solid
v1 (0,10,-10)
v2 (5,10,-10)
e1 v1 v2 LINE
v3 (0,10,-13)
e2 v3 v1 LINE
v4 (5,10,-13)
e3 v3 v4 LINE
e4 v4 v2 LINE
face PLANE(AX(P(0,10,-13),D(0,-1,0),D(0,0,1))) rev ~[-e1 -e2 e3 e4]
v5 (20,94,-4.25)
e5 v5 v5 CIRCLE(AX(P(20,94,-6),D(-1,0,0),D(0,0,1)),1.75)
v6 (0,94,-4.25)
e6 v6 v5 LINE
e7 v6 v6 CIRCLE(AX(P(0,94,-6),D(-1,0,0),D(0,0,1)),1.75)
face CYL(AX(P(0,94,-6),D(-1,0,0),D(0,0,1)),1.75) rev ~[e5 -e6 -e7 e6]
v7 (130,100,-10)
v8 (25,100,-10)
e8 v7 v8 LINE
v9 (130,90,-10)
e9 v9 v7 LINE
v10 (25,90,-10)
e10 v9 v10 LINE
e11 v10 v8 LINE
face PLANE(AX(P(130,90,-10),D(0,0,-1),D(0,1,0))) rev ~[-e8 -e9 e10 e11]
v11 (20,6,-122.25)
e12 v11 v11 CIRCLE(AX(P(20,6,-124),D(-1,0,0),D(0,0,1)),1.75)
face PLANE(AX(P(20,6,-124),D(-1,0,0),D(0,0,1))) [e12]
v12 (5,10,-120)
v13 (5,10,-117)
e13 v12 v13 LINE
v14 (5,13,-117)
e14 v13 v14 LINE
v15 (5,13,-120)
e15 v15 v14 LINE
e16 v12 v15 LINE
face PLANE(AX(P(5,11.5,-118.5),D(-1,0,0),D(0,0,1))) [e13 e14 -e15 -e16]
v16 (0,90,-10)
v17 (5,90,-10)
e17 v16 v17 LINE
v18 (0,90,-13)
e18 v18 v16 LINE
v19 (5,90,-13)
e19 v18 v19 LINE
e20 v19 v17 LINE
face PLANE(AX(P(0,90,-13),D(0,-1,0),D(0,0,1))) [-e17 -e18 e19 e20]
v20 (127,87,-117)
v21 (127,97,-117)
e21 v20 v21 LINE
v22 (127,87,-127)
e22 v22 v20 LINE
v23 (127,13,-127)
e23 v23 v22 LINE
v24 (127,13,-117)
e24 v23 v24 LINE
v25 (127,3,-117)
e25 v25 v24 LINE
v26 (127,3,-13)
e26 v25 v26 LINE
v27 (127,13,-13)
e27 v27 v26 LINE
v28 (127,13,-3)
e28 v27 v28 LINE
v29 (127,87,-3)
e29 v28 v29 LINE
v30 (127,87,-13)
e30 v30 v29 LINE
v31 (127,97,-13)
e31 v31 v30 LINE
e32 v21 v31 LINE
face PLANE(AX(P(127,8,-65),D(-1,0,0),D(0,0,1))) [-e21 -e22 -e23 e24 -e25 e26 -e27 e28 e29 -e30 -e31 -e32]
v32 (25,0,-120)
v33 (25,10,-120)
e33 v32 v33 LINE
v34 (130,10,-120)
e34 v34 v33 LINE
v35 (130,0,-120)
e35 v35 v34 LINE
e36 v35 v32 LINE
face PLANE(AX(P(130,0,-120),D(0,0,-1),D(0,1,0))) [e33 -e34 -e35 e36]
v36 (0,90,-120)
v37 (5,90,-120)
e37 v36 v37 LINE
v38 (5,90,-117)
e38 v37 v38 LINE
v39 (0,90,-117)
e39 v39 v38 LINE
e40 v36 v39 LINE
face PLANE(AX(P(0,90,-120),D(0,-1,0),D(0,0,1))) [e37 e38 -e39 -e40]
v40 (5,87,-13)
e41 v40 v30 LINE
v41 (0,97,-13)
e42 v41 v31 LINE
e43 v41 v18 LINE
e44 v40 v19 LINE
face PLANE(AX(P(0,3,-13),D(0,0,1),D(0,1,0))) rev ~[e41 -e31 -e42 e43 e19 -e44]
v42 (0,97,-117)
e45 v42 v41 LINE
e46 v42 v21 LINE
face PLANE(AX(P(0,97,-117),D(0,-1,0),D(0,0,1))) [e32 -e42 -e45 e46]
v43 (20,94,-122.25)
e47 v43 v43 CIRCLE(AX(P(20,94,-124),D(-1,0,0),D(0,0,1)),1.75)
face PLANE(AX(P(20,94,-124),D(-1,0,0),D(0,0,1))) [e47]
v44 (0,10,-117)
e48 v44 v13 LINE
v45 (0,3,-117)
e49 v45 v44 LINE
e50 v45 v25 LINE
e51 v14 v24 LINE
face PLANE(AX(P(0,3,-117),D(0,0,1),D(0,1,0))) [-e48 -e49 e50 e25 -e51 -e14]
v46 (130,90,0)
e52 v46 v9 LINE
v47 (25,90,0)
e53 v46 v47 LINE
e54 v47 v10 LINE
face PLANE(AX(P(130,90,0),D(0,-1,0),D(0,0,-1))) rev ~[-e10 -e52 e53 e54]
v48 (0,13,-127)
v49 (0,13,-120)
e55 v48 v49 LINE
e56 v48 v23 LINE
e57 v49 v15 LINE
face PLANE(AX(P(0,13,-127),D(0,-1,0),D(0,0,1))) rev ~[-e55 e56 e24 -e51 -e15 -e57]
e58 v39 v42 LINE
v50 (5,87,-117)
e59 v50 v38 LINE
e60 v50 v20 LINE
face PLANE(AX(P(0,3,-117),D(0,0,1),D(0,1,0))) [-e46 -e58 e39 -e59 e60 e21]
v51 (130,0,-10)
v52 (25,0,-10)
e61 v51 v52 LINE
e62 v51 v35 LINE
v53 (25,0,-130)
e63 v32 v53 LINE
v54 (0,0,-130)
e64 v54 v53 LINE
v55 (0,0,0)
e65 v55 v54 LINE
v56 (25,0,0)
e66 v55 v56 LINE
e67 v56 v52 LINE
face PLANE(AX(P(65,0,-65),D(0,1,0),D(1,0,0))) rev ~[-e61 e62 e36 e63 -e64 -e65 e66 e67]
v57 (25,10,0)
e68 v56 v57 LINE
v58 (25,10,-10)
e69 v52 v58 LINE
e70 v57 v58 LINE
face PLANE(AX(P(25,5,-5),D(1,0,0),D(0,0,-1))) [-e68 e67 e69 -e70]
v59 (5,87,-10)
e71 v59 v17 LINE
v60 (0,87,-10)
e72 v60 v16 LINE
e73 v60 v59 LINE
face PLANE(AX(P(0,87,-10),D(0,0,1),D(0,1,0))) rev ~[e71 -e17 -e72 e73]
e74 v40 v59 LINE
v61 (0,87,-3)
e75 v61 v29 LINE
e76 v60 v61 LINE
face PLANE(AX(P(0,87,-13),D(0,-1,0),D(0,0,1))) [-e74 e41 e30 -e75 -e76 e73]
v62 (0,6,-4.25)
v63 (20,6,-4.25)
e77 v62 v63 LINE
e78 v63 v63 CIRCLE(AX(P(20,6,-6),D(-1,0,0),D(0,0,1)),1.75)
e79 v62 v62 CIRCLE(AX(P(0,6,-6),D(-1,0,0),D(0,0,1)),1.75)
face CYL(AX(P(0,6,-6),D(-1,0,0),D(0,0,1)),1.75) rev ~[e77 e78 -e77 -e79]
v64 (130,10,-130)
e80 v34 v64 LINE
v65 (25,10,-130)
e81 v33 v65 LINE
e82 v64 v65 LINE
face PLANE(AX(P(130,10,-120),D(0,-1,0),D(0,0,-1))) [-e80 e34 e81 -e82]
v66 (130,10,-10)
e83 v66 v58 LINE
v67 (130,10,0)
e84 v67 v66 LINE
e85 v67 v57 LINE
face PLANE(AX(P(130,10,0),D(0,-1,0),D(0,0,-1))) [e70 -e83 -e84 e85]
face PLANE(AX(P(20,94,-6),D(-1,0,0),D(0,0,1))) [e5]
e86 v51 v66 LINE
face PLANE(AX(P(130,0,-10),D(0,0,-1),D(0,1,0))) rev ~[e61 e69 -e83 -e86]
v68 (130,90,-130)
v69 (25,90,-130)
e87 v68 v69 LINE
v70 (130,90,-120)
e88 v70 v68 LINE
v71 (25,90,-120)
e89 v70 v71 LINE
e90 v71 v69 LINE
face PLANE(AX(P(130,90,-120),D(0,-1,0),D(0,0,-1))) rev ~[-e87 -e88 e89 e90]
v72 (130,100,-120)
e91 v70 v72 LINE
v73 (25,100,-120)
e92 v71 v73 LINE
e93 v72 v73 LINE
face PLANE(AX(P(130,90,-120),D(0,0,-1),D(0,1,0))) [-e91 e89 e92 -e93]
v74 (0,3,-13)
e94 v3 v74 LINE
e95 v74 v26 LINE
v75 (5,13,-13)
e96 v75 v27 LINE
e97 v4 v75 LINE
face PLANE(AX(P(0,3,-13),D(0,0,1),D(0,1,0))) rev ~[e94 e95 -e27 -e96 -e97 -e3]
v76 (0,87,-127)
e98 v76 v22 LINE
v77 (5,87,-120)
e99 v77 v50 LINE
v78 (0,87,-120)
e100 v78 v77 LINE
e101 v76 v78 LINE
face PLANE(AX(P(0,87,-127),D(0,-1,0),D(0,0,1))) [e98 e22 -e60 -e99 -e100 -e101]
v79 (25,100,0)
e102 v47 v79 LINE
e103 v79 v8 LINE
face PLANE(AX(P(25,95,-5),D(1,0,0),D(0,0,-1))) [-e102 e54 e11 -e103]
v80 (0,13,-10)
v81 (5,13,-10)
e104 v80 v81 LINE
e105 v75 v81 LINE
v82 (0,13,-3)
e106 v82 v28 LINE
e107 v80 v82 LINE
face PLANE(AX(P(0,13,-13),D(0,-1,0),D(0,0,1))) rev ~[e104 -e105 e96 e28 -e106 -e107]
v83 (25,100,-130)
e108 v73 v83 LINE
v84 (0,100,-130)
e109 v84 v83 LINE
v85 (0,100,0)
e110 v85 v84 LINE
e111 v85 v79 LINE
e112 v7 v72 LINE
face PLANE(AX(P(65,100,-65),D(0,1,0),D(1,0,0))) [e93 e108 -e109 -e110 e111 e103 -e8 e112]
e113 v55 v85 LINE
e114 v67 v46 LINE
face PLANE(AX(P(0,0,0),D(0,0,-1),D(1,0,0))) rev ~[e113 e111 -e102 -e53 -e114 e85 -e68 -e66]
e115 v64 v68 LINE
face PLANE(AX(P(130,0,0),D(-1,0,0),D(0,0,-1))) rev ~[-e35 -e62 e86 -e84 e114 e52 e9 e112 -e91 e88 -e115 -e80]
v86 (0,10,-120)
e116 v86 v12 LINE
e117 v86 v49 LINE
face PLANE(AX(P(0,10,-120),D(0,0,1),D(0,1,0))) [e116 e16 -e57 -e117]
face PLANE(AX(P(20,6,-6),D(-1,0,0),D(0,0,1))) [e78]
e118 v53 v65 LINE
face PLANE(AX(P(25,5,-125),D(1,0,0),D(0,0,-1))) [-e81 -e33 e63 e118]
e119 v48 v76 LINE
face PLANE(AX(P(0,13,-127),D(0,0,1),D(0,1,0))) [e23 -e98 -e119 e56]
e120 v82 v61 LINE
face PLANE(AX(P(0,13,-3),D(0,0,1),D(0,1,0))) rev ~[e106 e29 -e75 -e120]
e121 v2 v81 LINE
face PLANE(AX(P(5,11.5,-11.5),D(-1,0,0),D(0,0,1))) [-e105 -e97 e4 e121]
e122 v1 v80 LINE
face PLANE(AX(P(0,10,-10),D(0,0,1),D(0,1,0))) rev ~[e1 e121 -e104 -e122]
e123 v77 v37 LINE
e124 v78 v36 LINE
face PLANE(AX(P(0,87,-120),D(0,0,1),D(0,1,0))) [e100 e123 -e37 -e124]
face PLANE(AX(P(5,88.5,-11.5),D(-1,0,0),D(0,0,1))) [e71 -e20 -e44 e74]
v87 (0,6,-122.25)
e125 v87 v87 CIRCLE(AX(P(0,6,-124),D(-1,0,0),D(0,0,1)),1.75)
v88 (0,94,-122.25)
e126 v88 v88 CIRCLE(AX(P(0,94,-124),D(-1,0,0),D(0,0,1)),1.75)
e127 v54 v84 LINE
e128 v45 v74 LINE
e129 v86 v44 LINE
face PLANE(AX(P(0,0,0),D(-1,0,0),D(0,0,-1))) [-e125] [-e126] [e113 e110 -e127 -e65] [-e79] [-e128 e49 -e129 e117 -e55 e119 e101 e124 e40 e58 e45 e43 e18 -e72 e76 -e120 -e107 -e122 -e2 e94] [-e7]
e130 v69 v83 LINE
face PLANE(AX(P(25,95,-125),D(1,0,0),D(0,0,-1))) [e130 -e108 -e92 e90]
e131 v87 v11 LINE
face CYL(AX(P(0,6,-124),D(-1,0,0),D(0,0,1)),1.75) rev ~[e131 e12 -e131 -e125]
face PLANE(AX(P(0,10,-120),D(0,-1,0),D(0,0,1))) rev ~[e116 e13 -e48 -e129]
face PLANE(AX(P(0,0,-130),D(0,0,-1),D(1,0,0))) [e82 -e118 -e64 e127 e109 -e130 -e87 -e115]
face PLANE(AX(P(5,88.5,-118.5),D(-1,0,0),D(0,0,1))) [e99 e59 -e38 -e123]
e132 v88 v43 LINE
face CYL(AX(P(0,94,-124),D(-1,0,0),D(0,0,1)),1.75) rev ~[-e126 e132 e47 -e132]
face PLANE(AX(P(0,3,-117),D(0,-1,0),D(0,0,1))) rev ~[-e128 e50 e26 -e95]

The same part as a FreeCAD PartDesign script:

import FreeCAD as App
import Part
import Sketcher
Q = App.Units.Quantity


def add_polygon(sketch, points):
    """Adds a closed chain of lines whose ends are joined by coincident constraints."""
    first, n = sketch.GeometryCount, len(points)
    for a, b in zip(points, points[1:] + points[:1]):
        sketch.addGeometry(Part.LineSegment(App.Vector(*a, 0), App.Vector(*b, 0)), False)
    for i in range(n):
        sketch.addConstraint(Sketcher.Constraint("Coincident", first + i, 2, first + (i + 1) % n, 1))

doc = App.newDocument("Part")
body = doc.addObject("PartDesign::Body", "Body")

# Sketch on XZ plane
sketch1 = doc.addObject("Sketcher::SketchObject", "Sketch")
body.addObject(sketch1)
sketch1.AttachmentSupport = (doc.XZ_Plane, [""])
sketch1.MapMode = "FlatFace"
add_polygon(sketch1, [(0, -130), (0, 0), (130, 0), (130, -130)])  # lines 0-3
sketch1.addConstraint(Sketcher.Constraint("Vertical", 0))
sketch1.addConstraint(Sketcher.Constraint("Horizontal", 1))
sketch1.addConstraint(Sketcher.Constraint("Vertical", 2))
sketch1.addConstraint(Sketcher.Constraint("Horizontal", 3))
sketch1.addConstraint(Sketcher.Constraint("Coincident", 0, 2, -1, 1))
sketch1.addConstraint(Sketcher.Constraint("Equal", 3, 0))
sketch1.addConstraint(Sketcher.Constraint("DistanceX", 1, 1, 1, 2, Q("130 mm")))
pad1 = doc.addObject("PartDesign::Pad", "Pad")
body.addObject(pad1)
pad1.Profile = sketch1
pad1.Length = 100
pad1.Reversed = True

# Sketch on YZ plane
sketch2 = doc.addObject("Sketcher::SketchObject", "Sketch001")
body.addObject(sketch2)
sketch2.AttachmentSupport = (doc.YZ_Plane, [""])
sketch2.MapMode = "FlatFace"
add_polygon(sketch2, [(87, -117), (13, -117), (13, -13), (87, -13)])  # lines 0-3
sketch2.addConstraint(Sketcher.Constraint("Horizontal", 0))
sketch2.addConstraint(Sketcher.Constraint("Vertical", 1))
sketch2.addConstraint(Sketcher.Constraint("Horizontal", 2))
sketch2.addConstraint(Sketcher.Constraint("Vertical", 3))
sketch2.addConstraint(Sketcher.Constraint("DistanceX", 0, 2, 0, 1, Q("74 mm")))
sketch2.addConstraint(Sketcher.Constraint("DistanceY", 1, 1, 1, 2, Q("104 mm")))
sketch2.addConstraint(Sketcher.Constraint("DistanceX", -1, 1, 0, 2, Q("13 mm")))
sketch2.addConstraint(Sketcher.Constraint("DistanceY", 0, 2, -1, 1, Q("117 mm")))
pocket1 = doc.addObject("PartDesign::Pocket", "Pocket")
body.addObject(pocket1)
pocket1.Profile = sketch2
pocket1.Length = 127
pocket1.Reversed = True

# Sketch on YZ plane
sketch3 = doc.addObject("Sketcher::SketchObject", "Sketch002")
body.addObject(sketch3)
sketch3.AttachmentSupport = (doc.YZ_Plane, [""])
sketch3.MapMode = "FlatFace"
sketch3.AttachmentOffset = App.Placement(App.Vector(0, 0, 130), App.Rotation())
add_polygon(sketch3, [(100, 0), (90, 0), (90, -10), (100, -10)])  # lines 0-3
add_polygon(sketch3, [(100, -120), (90, -120), (90, -130), (100, -130)])  # lines 4-7
add_polygon(sketch3, [(10, 0), (0, 0), (0, -10), (10, -10)])  # lines 8-11
add_polygon(sketch3, [(10, -120), (0, -120), (0, -130), (10, -130)])  # lines 12-15
sketch3.addConstraint(Sketcher.Constraint("Horizontal", 0))
sketch3.addConstraint(Sketcher.Constraint("Vertical", 1))
sketch3.addConstraint(Sketcher.Constraint("Horizontal", 2))
sketch3.addConstraint(Sketcher.Constraint("Vertical", 3))
sketch3.addConstraint(Sketcher.Constraint("Horizontal", 4))
sketch3.addConstraint(Sketcher.Constraint("Vertical", 5))
sketch3.addConstraint(Sketcher.Constraint("Horizontal", 6))
sketch3.addConstraint(Sketcher.Constraint("Vertical", 7))
sketch3.addConstraint(Sketcher.Constraint("Horizontal", 8))
sketch3.addConstraint(Sketcher.Constraint("Vertical", 9))
sketch3.addConstraint(Sketcher.Constraint("Horizontal", 10))
sketch3.addConstraint(Sketcher.Constraint("Vertical", 11))
sketch3.addConstraint(Sketcher.Constraint("Horizontal", 12))
sketch3.addConstraint(Sketcher.Constraint("Vertical", 13))
sketch3.addConstraint(Sketcher.Constraint("Horizontal", 14))
sketch3.addConstraint(Sketcher.Constraint("Vertical", 15))
sketch3.addConstraint(Sketcher.Constraint("Coincident", 8, 2, -1, 1))
sketch3.addConstraint(Sketcher.Constraint("PointOnObject", 0, 2, -1))
sketch3.addConstraint(Sketcher.Constraint("PointOnObject", 12, 2, -2))
sketch3.addConstraint(Sketcher.Constraint("Horizontal", 2, 2, 9, 2))
sketch3.addConstraint(Sketcher.Constraint("Horizontal", 7, 2, 12, 2))
sketch3.addConstraint(Sketcher.Constraint("Horizontal", 6, 2, 13, 2))
sketch3.addConstraint(Sketcher.Constraint("Vertical", 1, 2, 4, 2))
sketch3.addConstraint(Sketcher.Constraint("Vertical", 3, 2, 6, 2))
sketch3.addConstraint(Sketcher.Constraint("Vertical", 11, 2, 14, 2))
sketch3.addConstraint(Sketcher.Constraint("Equal", 6, 8))
sketch3.addConstraint(Sketcher.Constraint("Equal", 14, 1))
sketch3.addConstraint(Sketcher.Constraint("Equal", 3, 5))
sketch3.addConstraint(Sketcher.Constraint("DistanceX", 0, 2, 0, 1, Q("10 mm")))
sketch3.addConstraint(Sketcher.Constraint("DistanceX", -1, 1, 0, 2, Q("90 mm")))
sketch3.addConstraint(Sketcher.Constraint("DistanceY", 4, 2, -1, 1, Q("120 mm")))
pocket2 = doc.addObject("PartDesign::Pocket", "Pocket001")
body.addObject(pocket2)
pocket2.Profile = sketch3
pocket2.Length = 105

# Sketch on YZ plane
sketch4 = doc.addObject("Sketcher::SketchObject", "Sketch003")
body.addObject(sketch4)
sketch4.AttachmentSupport = (doc.YZ_Plane, [""])
sketch4.MapMode = "FlatFace"
add_polygon(sketch4, [(97, -117), (87, -117), (87, -13), (97, -13)])  # lines 0-3
add_polygon(sketch4, [(13, -117), (3, -117), (3, -13), (13, -13)])  # lines 4-7
sketch4.addConstraint(Sketcher.Constraint("Horizontal", 0))
sketch4.addConstraint(Sketcher.Constraint("Vertical", 1))
sketch4.addConstraint(Sketcher.Constraint("Horizontal", 2))
sketch4.addConstraint(Sketcher.Constraint("Vertical", 3))
sketch4.addConstraint(Sketcher.Constraint("Horizontal", 4))
sketch4.addConstraint(Sketcher.Constraint("Vertical", 5))
sketch4.addConstraint(Sketcher.Constraint("Horizontal", 6))
sketch4.addConstraint(Sketcher.Constraint("Vertical", 7))
sketch4.addConstraint(Sketcher.Constraint("Horizontal", 3, 2, 4, 2))
sketch4.addConstraint(Sketcher.Constraint("Horizontal", 2, 2, 5, 2))
sketch4.addConstraint(Sketcher.Constraint("Equal", 2, 4))
sketch4.addConstraint(Sketcher.Constraint("DistanceX", 0, 2, 0, 1, Q("10 mm")))
sketch4.addConstraint(Sketcher.Constraint("DistanceY", 1, 1, 1, 2, Q("104 mm")))
sketch4.addConstraint(Sketcher.Constraint("DistanceX", -1, 1, 0, 2, Q("87 mm")))
sketch4.addConstraint(Sketcher.Constraint("DistanceY", 0, 2, -1, 1, Q("117 mm")))
sketch4.addConstraint(Sketcher.Constraint("DistanceX", -1, 1, 4, 2, Q("3 mm")))
pocket3 = doc.addObject("PartDesign::Pocket", "Pocket002")
body.addObject(pocket3)
pocket3.Profile = sketch4
pocket3.Length = 127
pocket3.Reversed = True

# Sketch on YZ plane
sketch5 = doc.addObject("Sketcher::SketchObject", "Sketch004")
body.addObject(sketch5)
sketch5.AttachmentSupport = (doc.YZ_Plane, [""])
sketch5.MapMode = "FlatFace"
add_polygon(sketch5, [(87, -127), (13, -127), (13, -117), (87, -117)])  # lines 0-3
add_polygon(sketch5, [(87, -13), (13, -13), (13, -3), (87, -3)])  # lines 4-7
sketch5.addConstraint(Sketcher.Constraint("Horizontal", 0))
sketch5.addConstraint(Sketcher.Constraint("Vertical", 1))
sketch5.addConstraint(Sketcher.Constraint("Horizontal", 2))
sketch5.addConstraint(Sketcher.Constraint("Vertical", 3))
sketch5.addConstraint(Sketcher.Constraint("Horizontal", 4))
sketch5.addConstraint(Sketcher.Constraint("Vertical", 5))
sketch5.addConstraint(Sketcher.Constraint("Horizontal", 6))
sketch5.addConstraint(Sketcher.Constraint("Vertical", 7))
sketch5.addConstraint(Sketcher.Constraint("Vertical", 1, 2, 4, 2))
sketch5.addConstraint(Sketcher.Constraint("Vertical", 3, 2, 6, 2))
sketch5.addConstraint(Sketcher.Constraint("Equal", 3, 5))
sketch5.addConstraint(Sketcher.Constraint("DistanceX", 0, 2, 0, 1, Q("74 mm")))
sketch5.addConstraint(Sketcher.Constraint("DistanceY", 1, 1, 1, 2, Q("10 mm")))
sketch5.addConstraint(Sketcher.Constraint("DistanceX", -1, 1, 0, 2, Q("13 mm")))
sketch5.addConstraint(Sketcher.Constraint("DistanceY", 0, 2, -1, 1, Q("127 mm")))
sketch5.addConstraint(Sketcher.Constraint("DistanceY", 4, 2, -1, 1, Q("13 mm")))
pocket4 = doc.addObject("PartDesign::Pocket", "Pocket003")
body.addObject(pocket4)
pocket4.Profile = sketch5
pocket4.Length = 127
pocket4.Reversed = True

# Sketch on YZ plane
sketch6 = doc.addObject("Sketcher::SketchObject", "Sketch005")
body.addObject(sketch6)
sketch6.AttachmentSupport = (doc.YZ_Plane, [""])
sketch6.MapMode = "FlatFace"
sketch6.addGeometry(Part.Circle(App.Vector(94, -124, 0), App.Vector(0, 0, 1), 1.8), False)
sketch6.addGeometry(Part.Circle(App.Vector(94, -6, 0), App.Vector(0, 0, 1), 1.8), False)
sketch6.addGeometry(Part.Circle(App.Vector(6, -124, 0), App.Vector(0, 0, 1), 1.8), False)
sketch6.addGeometry(Part.Circle(App.Vector(6, -6, 0), App.Vector(0, 0, 1), 1.8), False)
sketch6.addConstraint(Sketcher.Constraint("Equal", 0, 1))
sketch6.addConstraint(Sketcher.Constraint("Equal", 1, 2))
sketch6.addConstraint(Sketcher.Constraint("Equal", 2, 3))
sketch6.addConstraint(Sketcher.Constraint("Horizontal", 0, 3, 2, 3))
sketch6.addConstraint(Sketcher.Constraint("Horizontal", 1, 3, 3, 3))
sketch6.addConstraint(Sketcher.Constraint("Vertical", 0, 3, 1, 3))
sketch6.addConstraint(Sketcher.Constraint("Vertical", 2, 3, 3, 3))
sketch6.addConstraint(Sketcher.Constraint("Diameter", 0, Q("3.5 mm")))
sketch6.addConstraint(Sketcher.Constraint("DistanceX", -1, 1, 0, 3, Q("94 mm")))
sketch6.addConstraint(Sketcher.Constraint("DistanceY", 0, 3, -1, 1, Q("124 mm")))
sketch6.addConstraint(Sketcher.Constraint("DistanceY", 1, 3, -1, 1, Q("6 mm")))
sketch6.addConstraint(Sketcher.Constraint("DistanceX", -1, 1, 2, 3, Q("6 mm")))
pocket5 = doc.addObject("PartDesign::Pocket", "Pocket004")
body.addObject(pocket5)
pocket5.Profile = sketch6
pocket5.Length = 20
pocket5.Reversed = True

# Sketch on YZ plane
sketch7 = doc.addObject("Sketcher::SketchObject", "Sketch006")
body.addObject(sketch7)
sketch7.AttachmentSupport = (doc.YZ_Plane, [""])
sketch7.MapMode = "FlatFace"
add_polygon(sketch7, [(90, -120), (87, -120), (87, -117), (90, -117)])  # lines 0-3
add_polygon(sketch7, [(90, -13), (87, -13), (87, -10), (90, -10)])  # lines 4-7
add_polygon(sketch7, [(13, -120), (10, -120), (10, -117), (13, -117)])  # lines 8-11
add_polygon(sketch7, [(13, -13), (10, -13), (10, -10), (13, -10)])  # lines 12-15
sketch7.addConstraint(Sketcher.Constraint("Horizontal", 0))
sketch7.addConstraint(Sketcher.Constraint("Vertical", 1))
sketch7.addConstraint(Sketcher.Constraint("Horizontal", 2))
sketch7.addConstraint(Sketcher.Constraint("Vertical", 3))
sketch7.addConstraint(Sketcher.Constraint("Horizontal", 4))
sketch7.addConstraint(Sketcher.Constraint("Vertical", 5))
sketch7.addConstraint(Sketcher.Constraint("Horizontal", 6))
sketch7.addConstraint(Sketcher.Constraint("Vertical", 7))
sketch7.addConstraint(Sketcher.Constraint("Horizontal", 8))
sketch7.addConstraint(Sketcher.Constraint("Vertical", 9))
sketch7.addConstraint(Sketcher.Constraint("Horizontal", 10))
sketch7.addConstraint(Sketcher.Constraint("Vertical", 11))
sketch7.addConstraint(Sketcher.Constraint("Horizontal", 12))
sketch7.addConstraint(Sketcher.Constraint("Vertical", 13))
sketch7.addConstraint(Sketcher.Constraint("Horizontal", 14))
sketch7.addConstraint(Sketcher.Constraint("Vertical", 15))
sketch7.addConstraint(Sketcher.Constraint("Horizontal", 3, 2, 8, 2))
sketch7.addConstraint(Sketcher.Constraint("Horizontal", 2, 2, 9, 2))
sketch7.addConstraint(Sketcher.Constraint("Horizontal", 7, 2, 12, 2))
sketch7.addConstraint(Sketcher.Constraint("Horizontal", 6, 2, 13, 2))
sketch7.addConstraint(Sketcher.Constraint("Vertical", 1, 2, 4, 2))
sketch7.addConstraint(Sketcher.Constraint("Vertical", 3, 2, 6, 2))
sketch7.addConstraint(Sketcher.Constraint("Vertical", 9, 2, 12, 2))
sketch7.addConstraint(Sketcher.Constraint("Vertical", 11, 2, 14, 2))
sketch7.addConstraint(Sketcher.Constraint("Equal", 6, 8))
sketch7.addConstraint(Sketcher.Constraint("Equal", 14, 1))
sketch7.addConstraint(Sketcher.Constraint("Equal", 3, 5))
sketch7.addConstraint(Sketcher.Constraint("DistanceX", 0, 2, 0, 1, Q("3 mm")))
sketch7.addConstraint(Sketcher.Constraint("DistanceX", -1, 1, 0, 2, Q("87 mm")))
sketch7.addConstraint(Sketcher.Constraint("DistanceY", 0, 2, -1, 1, Q("120 mm")))
sketch7.addConstraint(Sketcher.Constraint("DistanceY", 4, 2, -1, 1, Q("13 mm")))
sketch7.addConstraint(Sketcher.Constraint("DistanceX", -1, 1, 8, 2, Q("10 mm")))
pocket6 = doc.addObject("PartDesign::Pocket", "Pocket005")
body.addObject(pocket6)
pocket6.Profile = sketch7
pocket6.Length = 5
pocket6.Reversed = True

doc.recompute()
